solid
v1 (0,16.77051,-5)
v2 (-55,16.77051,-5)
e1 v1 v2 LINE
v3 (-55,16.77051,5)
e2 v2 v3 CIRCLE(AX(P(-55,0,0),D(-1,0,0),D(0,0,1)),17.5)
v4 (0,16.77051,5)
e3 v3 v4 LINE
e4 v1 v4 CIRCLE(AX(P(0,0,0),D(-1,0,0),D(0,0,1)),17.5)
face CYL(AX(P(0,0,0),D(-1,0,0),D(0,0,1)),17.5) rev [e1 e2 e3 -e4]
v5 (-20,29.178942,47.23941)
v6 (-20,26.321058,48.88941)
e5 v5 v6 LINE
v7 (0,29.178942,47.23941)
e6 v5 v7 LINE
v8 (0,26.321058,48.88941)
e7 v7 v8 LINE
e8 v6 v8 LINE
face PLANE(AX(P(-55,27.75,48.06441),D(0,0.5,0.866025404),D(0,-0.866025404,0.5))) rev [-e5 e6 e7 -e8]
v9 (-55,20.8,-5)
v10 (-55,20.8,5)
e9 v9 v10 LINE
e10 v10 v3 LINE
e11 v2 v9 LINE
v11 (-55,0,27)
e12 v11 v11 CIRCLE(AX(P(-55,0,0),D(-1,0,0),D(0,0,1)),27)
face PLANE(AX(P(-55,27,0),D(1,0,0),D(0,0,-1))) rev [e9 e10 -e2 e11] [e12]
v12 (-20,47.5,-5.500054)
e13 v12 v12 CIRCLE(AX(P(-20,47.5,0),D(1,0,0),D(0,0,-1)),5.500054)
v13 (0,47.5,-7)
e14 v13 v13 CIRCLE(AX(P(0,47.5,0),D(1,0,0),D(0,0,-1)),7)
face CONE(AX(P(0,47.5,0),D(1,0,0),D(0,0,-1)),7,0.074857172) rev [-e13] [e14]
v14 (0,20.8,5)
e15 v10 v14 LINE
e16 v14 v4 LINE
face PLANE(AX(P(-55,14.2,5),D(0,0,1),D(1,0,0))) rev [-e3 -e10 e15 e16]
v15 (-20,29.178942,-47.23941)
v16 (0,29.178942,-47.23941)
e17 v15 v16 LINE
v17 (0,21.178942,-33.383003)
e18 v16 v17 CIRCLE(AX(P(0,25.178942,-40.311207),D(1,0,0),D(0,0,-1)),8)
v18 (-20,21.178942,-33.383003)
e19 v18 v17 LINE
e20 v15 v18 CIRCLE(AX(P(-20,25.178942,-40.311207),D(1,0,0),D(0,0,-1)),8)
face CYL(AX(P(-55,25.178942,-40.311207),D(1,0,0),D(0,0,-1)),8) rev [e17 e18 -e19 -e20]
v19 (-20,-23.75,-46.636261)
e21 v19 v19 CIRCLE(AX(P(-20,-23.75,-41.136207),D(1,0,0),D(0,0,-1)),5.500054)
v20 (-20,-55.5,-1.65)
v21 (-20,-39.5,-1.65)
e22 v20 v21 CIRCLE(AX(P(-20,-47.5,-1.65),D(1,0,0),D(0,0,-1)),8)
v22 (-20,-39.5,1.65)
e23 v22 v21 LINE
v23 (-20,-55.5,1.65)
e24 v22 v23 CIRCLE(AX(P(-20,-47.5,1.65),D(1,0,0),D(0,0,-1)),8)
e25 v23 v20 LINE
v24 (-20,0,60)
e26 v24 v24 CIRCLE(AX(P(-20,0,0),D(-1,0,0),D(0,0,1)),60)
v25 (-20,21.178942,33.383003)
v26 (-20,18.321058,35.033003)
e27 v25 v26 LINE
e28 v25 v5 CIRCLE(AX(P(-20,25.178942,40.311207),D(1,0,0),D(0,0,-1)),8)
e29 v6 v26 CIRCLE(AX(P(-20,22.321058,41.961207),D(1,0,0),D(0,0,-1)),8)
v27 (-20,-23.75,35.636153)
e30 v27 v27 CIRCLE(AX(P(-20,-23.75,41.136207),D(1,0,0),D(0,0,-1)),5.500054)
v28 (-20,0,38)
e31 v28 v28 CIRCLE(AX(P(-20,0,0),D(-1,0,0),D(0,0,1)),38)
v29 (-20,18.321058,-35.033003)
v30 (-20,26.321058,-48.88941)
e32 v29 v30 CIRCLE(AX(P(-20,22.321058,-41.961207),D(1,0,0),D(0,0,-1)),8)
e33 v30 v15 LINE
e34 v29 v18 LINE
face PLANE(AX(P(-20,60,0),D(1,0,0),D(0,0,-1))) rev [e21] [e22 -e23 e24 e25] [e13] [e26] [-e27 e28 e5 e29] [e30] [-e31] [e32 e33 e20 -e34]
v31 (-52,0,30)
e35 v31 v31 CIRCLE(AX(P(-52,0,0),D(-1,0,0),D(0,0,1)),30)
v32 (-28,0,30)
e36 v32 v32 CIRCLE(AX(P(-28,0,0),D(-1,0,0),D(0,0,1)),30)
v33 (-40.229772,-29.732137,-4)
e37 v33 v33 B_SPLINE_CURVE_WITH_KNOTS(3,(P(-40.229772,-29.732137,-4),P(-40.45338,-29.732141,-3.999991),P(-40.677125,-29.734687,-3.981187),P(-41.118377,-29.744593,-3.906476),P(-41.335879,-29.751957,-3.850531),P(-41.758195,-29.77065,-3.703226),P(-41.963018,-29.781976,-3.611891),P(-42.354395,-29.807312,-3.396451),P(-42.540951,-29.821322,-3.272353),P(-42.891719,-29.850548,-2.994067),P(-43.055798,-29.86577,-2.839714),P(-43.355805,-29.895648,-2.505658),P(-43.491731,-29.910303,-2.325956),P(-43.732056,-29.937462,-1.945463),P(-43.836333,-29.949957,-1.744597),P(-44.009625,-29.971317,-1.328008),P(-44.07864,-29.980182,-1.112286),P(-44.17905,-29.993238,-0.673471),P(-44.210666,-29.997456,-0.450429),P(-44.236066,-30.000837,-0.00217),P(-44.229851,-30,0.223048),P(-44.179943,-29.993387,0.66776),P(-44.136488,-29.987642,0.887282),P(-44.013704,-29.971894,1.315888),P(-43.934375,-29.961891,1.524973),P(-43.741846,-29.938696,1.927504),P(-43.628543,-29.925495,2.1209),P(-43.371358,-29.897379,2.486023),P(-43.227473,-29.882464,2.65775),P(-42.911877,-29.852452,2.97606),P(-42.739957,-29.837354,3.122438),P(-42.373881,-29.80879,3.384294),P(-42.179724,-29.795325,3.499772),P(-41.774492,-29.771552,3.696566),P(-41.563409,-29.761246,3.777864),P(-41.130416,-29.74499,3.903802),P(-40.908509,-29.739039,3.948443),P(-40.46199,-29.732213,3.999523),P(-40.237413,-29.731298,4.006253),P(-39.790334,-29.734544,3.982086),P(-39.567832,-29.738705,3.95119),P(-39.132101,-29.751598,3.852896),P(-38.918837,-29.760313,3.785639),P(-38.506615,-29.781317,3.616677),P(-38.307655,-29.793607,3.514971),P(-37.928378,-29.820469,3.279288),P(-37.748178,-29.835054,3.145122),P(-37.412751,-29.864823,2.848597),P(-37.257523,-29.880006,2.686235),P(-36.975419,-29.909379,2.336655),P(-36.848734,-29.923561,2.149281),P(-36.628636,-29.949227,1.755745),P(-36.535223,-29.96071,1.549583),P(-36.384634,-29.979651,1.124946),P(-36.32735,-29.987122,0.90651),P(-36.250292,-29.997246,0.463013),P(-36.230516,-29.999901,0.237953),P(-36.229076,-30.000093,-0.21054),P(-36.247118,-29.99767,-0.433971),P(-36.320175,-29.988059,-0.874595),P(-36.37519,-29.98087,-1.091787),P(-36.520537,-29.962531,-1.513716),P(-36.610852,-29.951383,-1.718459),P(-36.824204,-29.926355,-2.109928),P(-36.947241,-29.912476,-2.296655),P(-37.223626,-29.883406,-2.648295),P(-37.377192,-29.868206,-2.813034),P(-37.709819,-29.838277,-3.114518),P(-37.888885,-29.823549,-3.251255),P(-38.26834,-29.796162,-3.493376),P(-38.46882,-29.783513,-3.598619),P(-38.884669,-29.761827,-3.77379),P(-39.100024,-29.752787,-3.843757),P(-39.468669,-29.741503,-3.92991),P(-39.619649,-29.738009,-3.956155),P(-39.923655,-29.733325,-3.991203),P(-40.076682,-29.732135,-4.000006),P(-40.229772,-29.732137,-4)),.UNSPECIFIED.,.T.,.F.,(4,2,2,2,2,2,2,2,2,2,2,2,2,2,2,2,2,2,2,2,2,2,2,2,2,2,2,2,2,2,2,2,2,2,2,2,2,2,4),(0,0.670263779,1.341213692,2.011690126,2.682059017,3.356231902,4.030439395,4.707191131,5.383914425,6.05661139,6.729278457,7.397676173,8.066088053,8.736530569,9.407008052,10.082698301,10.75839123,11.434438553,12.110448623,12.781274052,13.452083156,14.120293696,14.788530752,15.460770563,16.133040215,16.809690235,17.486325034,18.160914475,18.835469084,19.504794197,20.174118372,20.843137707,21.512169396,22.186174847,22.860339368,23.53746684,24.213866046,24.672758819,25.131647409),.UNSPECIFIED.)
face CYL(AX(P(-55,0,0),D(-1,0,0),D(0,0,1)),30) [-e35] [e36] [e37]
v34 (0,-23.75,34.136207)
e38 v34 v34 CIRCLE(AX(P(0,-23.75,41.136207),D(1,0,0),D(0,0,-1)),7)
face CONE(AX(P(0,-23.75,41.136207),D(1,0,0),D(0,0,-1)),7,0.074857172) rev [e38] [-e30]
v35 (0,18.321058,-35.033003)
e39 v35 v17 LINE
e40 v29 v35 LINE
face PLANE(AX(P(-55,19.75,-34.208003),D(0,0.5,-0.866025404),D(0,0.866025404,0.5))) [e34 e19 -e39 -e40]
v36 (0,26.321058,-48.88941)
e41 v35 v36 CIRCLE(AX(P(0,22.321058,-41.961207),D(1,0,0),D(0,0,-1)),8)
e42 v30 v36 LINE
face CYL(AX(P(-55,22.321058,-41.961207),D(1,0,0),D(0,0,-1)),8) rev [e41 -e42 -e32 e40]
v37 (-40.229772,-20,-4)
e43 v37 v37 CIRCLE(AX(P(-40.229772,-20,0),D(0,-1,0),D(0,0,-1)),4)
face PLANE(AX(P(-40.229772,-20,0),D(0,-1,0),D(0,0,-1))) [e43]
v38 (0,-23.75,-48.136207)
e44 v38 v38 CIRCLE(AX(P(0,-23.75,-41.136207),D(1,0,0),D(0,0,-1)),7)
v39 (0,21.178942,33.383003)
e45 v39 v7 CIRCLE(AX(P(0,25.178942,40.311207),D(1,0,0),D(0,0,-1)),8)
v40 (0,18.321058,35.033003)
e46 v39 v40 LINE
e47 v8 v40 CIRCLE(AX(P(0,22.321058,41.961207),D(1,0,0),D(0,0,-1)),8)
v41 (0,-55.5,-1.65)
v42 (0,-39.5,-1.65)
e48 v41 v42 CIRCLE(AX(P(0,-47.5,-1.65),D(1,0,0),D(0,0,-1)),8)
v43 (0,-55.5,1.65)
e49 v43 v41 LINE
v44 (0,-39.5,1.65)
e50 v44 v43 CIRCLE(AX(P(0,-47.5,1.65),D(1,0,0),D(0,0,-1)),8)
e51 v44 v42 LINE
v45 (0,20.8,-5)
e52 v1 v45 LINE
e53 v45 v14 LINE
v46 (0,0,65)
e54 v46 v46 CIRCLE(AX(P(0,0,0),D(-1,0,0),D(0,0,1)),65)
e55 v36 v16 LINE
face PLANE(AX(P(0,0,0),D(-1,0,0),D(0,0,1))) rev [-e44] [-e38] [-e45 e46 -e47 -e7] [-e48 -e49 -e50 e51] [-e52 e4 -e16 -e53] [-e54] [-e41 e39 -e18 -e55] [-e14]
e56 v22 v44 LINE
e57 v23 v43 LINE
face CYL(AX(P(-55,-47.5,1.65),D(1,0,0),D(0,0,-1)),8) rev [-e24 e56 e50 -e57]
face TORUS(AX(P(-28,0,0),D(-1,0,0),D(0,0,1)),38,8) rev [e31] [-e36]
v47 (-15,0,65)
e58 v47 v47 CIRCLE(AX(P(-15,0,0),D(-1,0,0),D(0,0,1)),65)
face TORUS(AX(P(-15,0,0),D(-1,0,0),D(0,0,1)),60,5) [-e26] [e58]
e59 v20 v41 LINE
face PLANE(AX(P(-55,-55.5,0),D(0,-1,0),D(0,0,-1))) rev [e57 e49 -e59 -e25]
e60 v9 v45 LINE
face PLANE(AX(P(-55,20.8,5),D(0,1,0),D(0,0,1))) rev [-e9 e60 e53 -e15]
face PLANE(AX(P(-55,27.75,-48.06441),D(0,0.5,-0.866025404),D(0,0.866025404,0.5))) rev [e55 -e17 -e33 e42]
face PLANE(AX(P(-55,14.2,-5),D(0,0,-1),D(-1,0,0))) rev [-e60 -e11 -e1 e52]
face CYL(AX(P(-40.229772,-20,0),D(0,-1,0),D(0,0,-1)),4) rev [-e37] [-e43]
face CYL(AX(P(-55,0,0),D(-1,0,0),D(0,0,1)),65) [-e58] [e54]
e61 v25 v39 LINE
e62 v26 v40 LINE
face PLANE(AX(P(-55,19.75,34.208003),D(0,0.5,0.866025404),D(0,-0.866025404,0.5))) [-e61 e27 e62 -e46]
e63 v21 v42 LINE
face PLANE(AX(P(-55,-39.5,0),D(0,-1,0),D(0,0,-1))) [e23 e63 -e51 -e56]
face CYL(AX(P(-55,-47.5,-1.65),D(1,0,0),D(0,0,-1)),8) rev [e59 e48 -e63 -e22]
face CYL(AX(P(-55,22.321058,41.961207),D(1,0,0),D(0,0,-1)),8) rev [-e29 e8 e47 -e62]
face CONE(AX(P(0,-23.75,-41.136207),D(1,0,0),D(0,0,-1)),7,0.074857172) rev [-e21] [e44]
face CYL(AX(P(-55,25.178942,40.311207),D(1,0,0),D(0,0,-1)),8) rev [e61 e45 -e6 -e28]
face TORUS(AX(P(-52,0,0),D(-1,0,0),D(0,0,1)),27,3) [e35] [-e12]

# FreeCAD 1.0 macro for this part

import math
import FreeCAD as App
import Part
import Sketcher
Q = App.Units.Quantity


def add_polygon(sketch, points):
    """Adds a closed chain of lines whose ends are joined by coincident constraints."""
    first, n = sketch.GeometryCount, len(points)
    for a, b in zip(points, points[1:] + points[:1]):
        sketch.addGeometry(Part.LineSegment(App.Vector(*a, 0), App.Vector(*b, 0)), False)
    for i in range(n):
        sketch.addConstraint(Sketcher.Constraint("Coincident", first + i, 2, first + (i + 1) % n, 1))

doc = App.newDocument("Part")
body = doc.addObject("PartDesign::Body", "Body")

# Sketch on XY plane
sketch1 = body.newObject("Sketcher::SketchObject", "Sketch")
sketch1.AttachmentSupport = (doc.getObject("XY_Plane"), [""])
sketch1.MapMode = "FlatFace"
sketch1.addGeometry([
    Part.LineSegment(App.Vector(-55, 0, 0), App.Vector(0, 0, 0)),  # 0
    Part.LineSegment(App.Vector(0, 0, 0), App.Vector(0, 65, 0)),  # 1
    Part.LineSegment(App.Vector(0, 65, 0), App.Vector(-15, 65, 0)),  # 2
    Part.ArcOfCircle(Part.Circle(App.Vector(-15, 60, 0), App.Vector(0, 0, 1), 5), math.radians(90), math.radians(180)),  # 3
    Part.LineSegment(App.Vector(-20, 60, 0), App.Vector(-20, 38, 0)),  # 4
    Part.ArcOfCircle(Part.Circle(App.Vector(-28, 38, 0), App.Vector(0, 0, 1), 8), math.radians(-90), math.radians(0)),  # 5
    Part.LineSegment(App.Vector(-28, 30, 0), App.Vector(-52, 30, 0)),  # 6
    Part.ArcOfCircle(Part.Circle(App.Vector(-52, 27, 0), App.Vector(0, 0, 1), 3), math.radians(90), math.radians(180)),  # 7
    Part.LineSegment(App.Vector(-55, 27, 0), App.Vector(-55, 0, 0)),  # 8
], False)
sketch1.addConstraint([
    Sketcher.Constraint("Coincident", 0, 2, 1, 1),
    Sketcher.Constraint("Coincident", 1, 2, 2, 1),
    Sketcher.Constraint("Tangent", 2, 2, 3, 1),
    Sketcher.Constraint("Tangent", 3, 2, 4, 1),
    Sketcher.Constraint("Tangent", 4, 2, 5, 2),
    Sketcher.Constraint("Tangent", 5, 1, 6, 1),
    Sketcher.Constraint("Tangent", 6, 2, 7, 1),
    Sketcher.Constraint("Tangent", 7, 2, 8, 1),
    Sketcher.Constraint("Coincident", 8, 2, 0, 1),
    Sketcher.Constraint("Horizontal", 0),
    Sketcher.Constraint("Vertical", 1),
    Sketcher.Constraint("Horizontal", 2),
    Sketcher.Constraint("Vertical", 4),
    Sketcher.Constraint("Horizontal", 6),
    Sketcher.Constraint("Vertical", 8),
    Sketcher.Constraint("Coincident", 0, 2, -1, 1),
    Sketcher.Constraint("Radius", 3, 5.0),
    Sketcher.Constraint("Radius", 5, 8.0),
    Sketcher.Constraint("Radius", 7, 3.0),
    Sketcher.Constraint("DistanceX", 0, 1, 0, 2, 55.0),
    Sketcher.Constraint("DistanceX", 2, 2, 2, 1, 15.0),
    Sketcher.Constraint("DistanceY", 1, 1, 1, 2, 65.0),
    Sketcher.Constraint("DistanceY", 4, 2, 4, 1, 22.0),
])
revolution = body.newObject("PartDesign::Revolution", "Revolution")
revolution.Profile = sketch1
revolution.ReferenceAxis = (sketch1, ["H_Axis"])
revolution.Angle = 360

# Sketch on YZ plane
sketch2 = body.newObject("Sketcher::SketchObject", "Sketch001")
sketch2.AttachmentSupport = (doc.getObject("YZ_Plane"), [""])
sketch2.MapMode = "FlatFace"
sketch2.AttachmentOffset = App.Placement(App.Vector(0, 0, -55), App.Rotation())
sketch2.addGeometry(Part.Circle(App.Vector(0, 0, 0), App.Vector(0, 0, 1), 18), False)
sketch2.addConstraint([
    Sketcher.Constraint("Coincident", 0, 3, -1, 1),
    Sketcher.Constraint("Diameter", 0, 35.0),
])
pocket1 = body.newObject("PartDesign::Pocket", "Pocket")
pocket1.Profile = sketch2
pocket1.Type = "ThroughAll"
pocket1.Reversed = True

# Sketch on YZ plane
sketch3 = body.newObject("Sketcher::SketchObject", "Sketch002")
sketch3.AttachmentSupport = (doc.getObject("YZ_Plane"), [""])
sketch3.MapMode = "FlatFace"
add_polygon(sketch3, [(21, 5), (14, 5), (14, -5), (21, -5)])  # lines 0-3
sketch3.addConstraint([
    Sketcher.Constraint("Horizontal", 0),
    Sketcher.Constraint("Vertical", 1),
    Sketcher.Constraint("Horizontal", 2),
    Sketcher.Constraint("Vertical", 3),
    Sketcher.Constraint("DistanceY", 1, 2, 1, 1, 10.0),
    Sketcher.Constraint("DistanceX", 0, 2, 0, 1, 6.6),
    Sketcher.Constraint("DistanceY", -1, 1, 0, 2, 5.0),
    Sketcher.Constraint("DistanceX", -1, 1, 0, 2, 14.2),
])
pocket2 = body.newObject("PartDesign::Pocket", "Pocket001")
pocket2.Profile = sketch3
pocket2.Type = "ThroughAll"

# Sketch on XZ plane
sketch4 = body.newObject("Sketcher::SketchObject", "Sketch003")
sketch4.AttachmentSupport = (doc.getObject("XZ_Plane"), [""])
sketch4.MapMode = "FlatFace"
sketch4.AttachmentOffset = App.Placement(App.Vector(0, 0, 30), App.Rotation())
sketch4.addGeometry(Part.Circle(App.Vector(-40.2, 0, 0), App.Vector(0, 0, 1), 4), False)
sketch4.addConstraint([
    Sketcher.Constraint("PointOnObject", 0, 3, -1),
    Sketcher.Constraint("Diameter", 0, 8.0),
    Sketcher.Constraint("DistanceX", 0, 3, -1, 1, 40.229772),
])
pocket3 = body.newObject("PartDesign::Pocket", "Pocket002")
pocket3.Profile = sketch4
pocket3.Length = 10

# Sketch on YZ plane
sketch5 = body.newObject("Sketcher::SketchObject", "Sketch004")
sketch5.AttachmentSupport = (doc.getObject("YZ_Plane"), [""])
sketch5.MapMode = "FlatFace"
sketch5.addGeometry([
    Part.ArcOfCircle(Part.Circle(App.Vector(22.3, 42, 0), App.Vector(0, 0, 1), 8), math.radians(60), math.radians(157)),  # 0
    Part.ArcOfCircle(Part.Circle(App.Vector(22.3, 42, 0), App.Vector(0, 0, 1), 8), math.radians(157), math.radians(240)),  # 1
    Part.LineSegment(App.Vector(18.3, 35, 0), App.Vector(21.2, 33.4, 0)),  # 2
    Part.ArcOfCircle(Part.Circle(App.Vector(25.2, 40.3, 0), App.Vector(0, 0, 1), 8), math.radians(-120), math.radians(-37)),  # 3
    Part.ArcOfCircle(Part.Circle(App.Vector(25.2, 40.3, 0), App.Vector(0, 0, 1), 8), math.radians(-37), math.radians(60)),  # 4
    Part.LineSegment(App.Vector(29.2, 47.2, 0), App.Vector(26.3, 48.9, 0)),  # 5
    Part.ArcOfCircle(Part.Circle(App.Vector(22.3, -42, 0), App.Vector(0, 0, 1), 8), math.radians(120), math.radians(203)),  # 6
    Part.ArcOfCircle(Part.Circle(App.Vector(22.3, -42, 0), App.Vector(0, 0, 1), 8), math.radians(-157), math.radians(-60)),  # 7
    Part.LineSegment(App.Vector(26.3, -48.9, 0), App.Vector(29.2, -47.2, 0)),  # 8
    Part.ArcOfCircle(Part.Circle(App.Vector(25.2, -40.3, 0), App.Vector(0, 0, 1), 8), math.radians(-60), math.radians(37)),  # 9
    Part.ArcOfCircle(Part.Circle(App.Vector(25.2, -40.3, 0), App.Vector(0, 0, 1), 8), math.radians(37), math.radians(120)),  # 10
    Part.LineSegment(App.Vector(21.2, -33.4, 0), App.Vector(18.3, -35, 0)),  # 11
    Part.LineSegment(App.Vector(-39.5, -1.6, 0), App.Vector(-39.5, 1.6, 0)),  # 12
    Part.ArcOfCircle(Part.Circle(App.Vector(-47.5, 1.7, 0), App.Vector(0, 0, 1), 8), math.radians(0), math.radians(83)),  # 13
    Part.ArcOfCircle(Part.Circle(App.Vector(-47.5, 1.7, 0), App.Vector(0, 0, 1), 8), math.radians(83), math.radians(180)),  # 14
    Part.LineSegment(App.Vector(-55.5, 1.6, 0), App.Vector(-55.5, -1.6, 0)),  # 15
    Part.ArcOfCircle(Part.Circle(App.Vector(-47.5, -1.7, 0), App.Vector(0, 0, 1), 8), math.radians(180), math.radians(277)),  # 16
    Part.ArcOfCircle(Part.Circle(App.Vector(-47.5, -1.7, 0), App.Vector(0, 0, 1), 8), math.radians(-83), math.radians(0)),  # 17
], False)
sketch5.addConstraint([
    Sketcher.Constraint("Tangent", 0, 2, 1, 1),
    Sketcher.Constraint("Tangent", 1, 2, 2, 1),
    Sketcher.Constraint("Tangent", 2, 2, 3, 1),
    Sketcher.Constraint("Tangent", 3, 2, 4, 1),
    Sketcher.Constraint("Tangent", 4, 2, 5, 1),
    Sketcher.Constraint("Tangent", 5, 2, 0, 1),
    Sketcher.Constraint("Tangent", 6, 2, 7, 1),
    Sketcher.Constraint("Tangent", 7, 2, 8, 1),
    Sketcher.Constraint("Tangent", 8, 2, 9, 1),
    Sketcher.Constraint("Tangent", 9, 2, 10, 1),
    Sketcher.Constraint("Tangent", 10, 2, 11, 1),
    Sketcher.Constraint("Tangent", 11, 2, 6, 1),
    Sketcher.Constraint("Tangent", 12, 2, 13, 1),
    Sketcher.Constraint("Tangent", 13, 2, 14, 1),
    Sketcher.Constraint("Tangent", 14, 2, 15, 1),
    Sketcher.Constraint("Tangent", 15, 2, 16, 1),
    Sketcher.Constraint("Tangent", 16, 2, 17, 1),
    Sketcher.Constraint("Tangent", 17, 2, 12, 1),
    Sketcher.Constraint("Vertical", 12),
    Sketcher.Constraint("Vertical", 15),
    Sketcher.Constraint("Equal", 0, 1),
    Sketcher.Constraint("Equal", 1, 3),
    Sketcher.Constraint("Equal", 3, 4),
    Sketcher.Constraint("Equal", 4, 6),
    Sketcher.Constraint("Equal", 6, 7),
    Sketcher.Constraint("Equal", 7, 9),
    Sketcher.Constraint("Equal", 9, 10),
    Sketcher.Constraint("Equal", 10, 13),
    Sketcher.Constraint("Equal", 13, 14),
    Sketcher.Constraint("Equal", 14, 16),
    Sketcher.Constraint("Symmetric", 0, 3, 6, 3, -1),
    Sketcher.Constraint("Symmetric", 3, 3, 9, 3, -1),
    Sketcher.Constraint("Symmetric", 13, 2, 16, 2, -1),
    Sketcher.Constraint("Vertical", 0, 2, 6, 2),
    Sketcher.Constraint("Vertical", 3, 2, 9, 2),
    Sketcher.Constraint("Radius", 0, 8.0),
    Sketcher.Constraint("Angle", 2, Q("-30 deg")),
    Sketcher.Constraint("DistanceY", 12, 1, 12, 2, 3.3),
    Sketcher.Constraint("Distance", 2, 3.3),
    Sketcher.Constraint("DistanceX", 13, 3, -1, 1, 47.5),
    Sketcher.Constraint("DistanceX", -1, 1, 0, 3, 22.321058),
    Sketcher.Constraint("DistanceX", -1, 1, 0, 2, 14.955761),
    Sketcher.Constraint("DistanceY", -1, 1, 0, 2, 45.08409),
    Sketcher.Constraint("DistanceX", 13, 2, -1, 1, 46.521848),
    Sketcher.Constraint("DistanceY", 2, 2, 3, 2, 2.111111),
])
pocket4 = body.newObject("PartDesign::Pocket", "Pocket003")
pocket4.Profile = sketch5
pocket4.Type = "ThroughAll"

# Sketch on XZ plane
sketch6 = body.newObject("Sketcher::SketchObject", "Sketch005")
sketch6.AttachmentSupport = (doc.getObject("XZ_Plane"), [""])
sketch6.MapMode = "FlatFace"
sketch6.AttachmentOffset = App.Placement(App.Vector(0, 0, -47.5), App.Rotation())
add_polygon(sketch6, [(0, 0), (0, -7), (-93, 0)])  # lines 0-2
sketch6.addConstraint([
    Sketcher.Constraint("Vertical", 0),
    Sketcher.Constraint("Horizontal", 2),
    Sketcher.Constraint("Coincident", 2, 2, -1, 1),
    Sketcher.Constraint("DistanceY", 0, 2, 0, 1, 7.0),
    Sketcher.Constraint("DistanceX", 2, 1, 2, 2, 93.336682),
])
groove = body.newObject("PartDesign::Groove", "Groove")
groove.Profile = sketch6
groove.ReferenceAxis = (sketch6, ["H_Axis"])
groove.Angle = 360

# Sketch on XZ plane
sketch7 = body.newObject("Sketcher::SketchObject", "Sketch006")
sketch7.AttachmentSupport = (doc.getObject("XZ_Plane"), [""])
sketch7.MapMode = "FlatFace"
sketch7.AttachmentOffset = App.Placement(App.Vector(0, 0, 23.75), App.Rotation())
add_polygon(sketch7, [(0, -41), (0, -48), (-93, -41)])  # lines 0-2
sketch7.addGeometry(Part.LineSegment(App.Vector(0, -41, 0), App.Vector(-93, -41, 0)), True)  # axis
sketch7.addConstraint([
    Sketcher.Constraint("Vertical", 0),
    Sketcher.Constraint("Horizontal", 2),
    Sketcher.Constraint("Horizontal", 3),
    Sketcher.Constraint("Coincident", 3, 1, 2, 2),
    Sketcher.Constraint("PointOnObject", 0, 2, -2),
    Sketcher.Constraint("Equal", 2, 3),
    Sketcher.Constraint("DistanceY", 0, 2, 0, 1, 7.0),
    Sketcher.Constraint("DistanceX", 2, 1, 2, 2, 93.336682),
    Sketcher.Constraint("DistanceY", 0, 2, -1, 1, 48.136207),
])
groove2 = body.newObject("PartDesign::Groove", "Groove001")
groove2.Profile = sketch7
groove2.ReferenceAxis = (sketch7, ["Axis0"])
groove2.Angle = 360

# Sketch on XZ plane
sketch8 = body.newObject("Sketcher::SketchObject", "Sketch007")
sketch8.AttachmentSupport = (doc.getObject("XZ_Plane"), [""])
sketch8.MapMode = "FlatFace"
sketch8.AttachmentOffset = App.Placement(App.Vector(0, 0, 23.75), App.Rotation())
add_polygon(sketch8, [(0, 41), (0, 34), (-93, 41)])  # lines 0-2
sketch8.addGeometry(Part.LineSegment(App.Vector(0, 41, 0), App.Vector(-93, 41, 0)), True)  # axis
sketch8.addConstraint([
    Sketcher.Constraint("Vertical", 0),
    Sketcher.Constraint("Horizontal", 2),
    Sketcher.Constraint("Horizontal", 3),
    Sketcher.Constraint("Coincident", 3, 1, 2, 2),
    Sketcher.Constraint("PointOnObject", 0, 2, -2),
    Sketcher.Constraint("Equal", 2, 3),
    Sketcher.Constraint("DistanceY", 0, 2, 0, 1, 7.0),
    Sketcher.Constraint("DistanceX", 2, 1, 2, 2, 93.336682),
    Sketcher.Constraint("DistanceY", -1, 1, 0, 2, 34.136207),
])
groove3 = body.newObject("PartDesign::Groove", "Groove002")
groove3.Profile = sketch8
groove3.ReferenceAxis = (sketch8, ["Axis0"])
groove3.Angle = 360

doc.recompute()
